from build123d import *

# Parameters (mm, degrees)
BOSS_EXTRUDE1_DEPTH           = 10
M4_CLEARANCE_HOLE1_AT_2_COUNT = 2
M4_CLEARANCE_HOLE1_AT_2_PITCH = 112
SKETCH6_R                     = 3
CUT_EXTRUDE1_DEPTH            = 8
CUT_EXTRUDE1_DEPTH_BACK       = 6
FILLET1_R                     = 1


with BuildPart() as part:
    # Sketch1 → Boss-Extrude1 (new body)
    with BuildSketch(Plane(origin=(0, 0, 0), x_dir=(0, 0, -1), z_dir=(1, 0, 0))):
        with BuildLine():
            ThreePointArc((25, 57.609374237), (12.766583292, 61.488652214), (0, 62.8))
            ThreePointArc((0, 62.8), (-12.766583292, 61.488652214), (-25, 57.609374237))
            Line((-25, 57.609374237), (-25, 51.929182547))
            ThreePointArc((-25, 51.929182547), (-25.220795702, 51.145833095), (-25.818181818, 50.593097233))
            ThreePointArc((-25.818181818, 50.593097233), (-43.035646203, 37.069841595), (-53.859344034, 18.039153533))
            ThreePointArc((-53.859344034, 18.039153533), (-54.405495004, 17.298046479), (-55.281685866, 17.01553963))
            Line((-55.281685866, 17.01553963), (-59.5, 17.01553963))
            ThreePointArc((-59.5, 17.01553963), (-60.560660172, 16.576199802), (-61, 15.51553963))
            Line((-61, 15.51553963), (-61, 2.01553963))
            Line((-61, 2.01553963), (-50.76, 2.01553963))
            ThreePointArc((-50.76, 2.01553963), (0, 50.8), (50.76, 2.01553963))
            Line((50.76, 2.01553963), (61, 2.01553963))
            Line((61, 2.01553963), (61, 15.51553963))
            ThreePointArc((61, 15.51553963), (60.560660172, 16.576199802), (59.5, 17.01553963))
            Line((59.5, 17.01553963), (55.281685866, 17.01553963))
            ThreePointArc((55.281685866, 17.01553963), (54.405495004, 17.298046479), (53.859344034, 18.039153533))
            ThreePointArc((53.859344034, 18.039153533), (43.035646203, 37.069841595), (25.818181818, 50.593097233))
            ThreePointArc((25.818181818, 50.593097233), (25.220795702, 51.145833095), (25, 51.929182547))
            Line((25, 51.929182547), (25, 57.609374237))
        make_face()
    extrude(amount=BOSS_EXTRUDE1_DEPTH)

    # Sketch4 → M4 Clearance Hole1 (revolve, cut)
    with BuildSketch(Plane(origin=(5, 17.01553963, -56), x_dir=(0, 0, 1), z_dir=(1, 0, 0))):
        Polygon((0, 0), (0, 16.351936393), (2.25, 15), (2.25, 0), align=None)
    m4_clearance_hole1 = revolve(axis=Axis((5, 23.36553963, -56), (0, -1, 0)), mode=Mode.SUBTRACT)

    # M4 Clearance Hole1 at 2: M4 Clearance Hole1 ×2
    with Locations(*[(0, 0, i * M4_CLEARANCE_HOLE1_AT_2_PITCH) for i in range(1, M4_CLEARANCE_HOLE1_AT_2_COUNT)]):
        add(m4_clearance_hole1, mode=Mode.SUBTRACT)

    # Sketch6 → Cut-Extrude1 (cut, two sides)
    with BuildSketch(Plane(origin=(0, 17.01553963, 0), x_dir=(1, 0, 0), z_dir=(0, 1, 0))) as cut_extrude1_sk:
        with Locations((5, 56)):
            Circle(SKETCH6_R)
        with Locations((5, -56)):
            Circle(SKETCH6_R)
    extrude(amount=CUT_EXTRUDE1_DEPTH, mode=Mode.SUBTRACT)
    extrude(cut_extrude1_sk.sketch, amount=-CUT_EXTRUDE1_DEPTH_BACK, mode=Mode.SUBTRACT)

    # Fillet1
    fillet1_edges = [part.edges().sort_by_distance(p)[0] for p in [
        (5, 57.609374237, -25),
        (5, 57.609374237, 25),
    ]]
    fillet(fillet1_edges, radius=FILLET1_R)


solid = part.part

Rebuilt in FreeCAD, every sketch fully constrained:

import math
import FreeCAD as App
import Part
import Sketcher
Q = App.Units.Quantity


def edges_at(feature, points):
    """Names of the edges that pass closest to the given points."""
    edges = feature.Shape.Edges
    near = lambda p: min(range(len(edges)), key=lambda i: edges[i].distToShape(Part.Vertex(*p))[0])
    return sorted({f"Edge{near(p) + 1}" for p in points})

doc = App.newDocument("Part")
body = doc.addObject("PartDesign::Body", "Body")

# Sketch on YZ plane
sketch1 = body.newObject("Sketcher::SketchObject", "Sketch")
sketch1.AttachmentSupport = (doc.getObject("YZ_Plane"), [""])
sketch1.MapMode = "FlatFace"
sketch1.addGeometry([
    Part.ArcOfCircle(Part.Circle(App.Vector(0, 0, 0), App.Vector(0, 0, 1), 62.8), math.radians(-23), math.radians(0)),  # 0
    Part.ArcOfCircle(Part.Circle(App.Vector(0, 0, 0), App.Vector(0, 0, 1), 62.8), math.radians(0), math.radians(23)),  # 1
    Part.LineSegment(App.Vector(57.6, 25, 0), App.Vector(51.9, 25, 0)),  # 2
    Part.ArcOfCircle(Part.Circle(App.Vector(51.9, 26.5, 0), App.Vector(0, 0, 1), 1.5), math.radians(-153), math.radians(-90)),  # 3
    Part.ArcOfCircle(Part.Circle(App.Vector(0, 0, 0), App.Vector(0, 0, 1), 56.8), math.radians(27), math.radians(71)),  # 4
    Part.ArcOfCircle(Part.Circle(App.Vector(18.5, 55.3, 0), App.Vector(0, 0, 1), 1.5), math.radians(-180), math.radians(-109)),  # 5
    Part.LineSegment(App.Vector(17, 55.3, 0), App.Vector(17, 59.5, 0)),  # 6
    Part.ArcOfCircle(Part.Circle(App.Vector(15.5, 59.5, 0), App.Vector(0, 0, 1), 1.5), math.radians(0), math.radians(90)),  # 7
    Part.LineSegment(App.Vector(15.5, 61, 0), App.Vector(2, 61, 0)),  # 8
    Part.LineSegment(App.Vector(2, 61, 0), App.Vector(2, 50.8, 0)),  # 9
    Part.ArcOfCircle(Part.Circle(App.Vector(0, 0, 0), App.Vector(0, 0, 1), 50.8), math.radians(-88), math.radians(88)),  # 10
    Part.LineSegment(App.Vector(2, -50.8, 0), App.Vector(2, -61, 0)),  # 11
    Part.LineSegment(App.Vector(2, -61, 0), App.Vector(15.5, -61, 0)),  # 12
    Part.ArcOfCircle(Part.Circle(App.Vector(15.5, -59.5, 0), App.Vector(0, 0, 1), 1.5), math.radians(-90), math.radians(0)),  # 13
    Part.LineSegment(App.Vector(17, -59.5, 0), App.Vector(17, -55.3, 0)),  # 14
    Part.ArcOfCircle(Part.Circle(App.Vector(18.5, -55.3, 0), App.Vector(0, 0, 1), 1.5), math.radians(109), math.radians(180)),  # 15
    Part.ArcOfCircle(Part.Circle(App.Vector(0, 0, 0), App.Vector(0, 0, 1), 56.8), math.radians(-71), math.radians(-27)),  # 16
    Part.ArcOfCircle(Part.Circle(App.Vector(51.9, -26.5, 0), App.Vector(0, 0, 1), 1.5), math.radians(90), math.radians(153)),  # 17
    Part.LineSegment(App.Vector(51.9, -25, 0), App.Vector(57.6, -25, 0)),  # 18
], False)
sketch1.addConstraint([
    Sketcher.Constraint("Tangent", 0, 2, 1, 1),
    Sketcher.Constraint("Coincident", 1, 2, 2, 1),
    Sketcher.Constraint("Tangent", 2, 2, 3, 2),
    Sketcher.Constraint("Tangent", 3, 1, 4, 1),
    Sketcher.Constraint("Tangent", 4, 2, 5, 2),
    Sketcher.Constraint("Tangent", 5, 1, 6, 1),
    Sketcher.Constraint("Tangent", 6, 2, 7, 1),
    Sketcher.Constraint("Tangent", 7, 2, 8, 1),
    Sketcher.Constraint("Coincident", 8, 2, 9, 1),
    Sketcher.Constraint("Coincident", 9, 2, 10, 2),
    Sketcher.Constraint("Coincident", 10, 1, 11, 1),
    Sketcher.Constraint("Coincident", 11, 2, 12, 1),
    Sketcher.Constraint("Tangent", 12, 2, 13, 1),
    Sketcher.Constraint("Tangent", 13, 2, 14, 1),
    Sketcher.Constraint("Tangent", 14, 2, 15, 2),
    Sketcher.Constraint("Tangent", 15, 1, 16, 1),
    Sketcher.Constraint("Tangent", 16, 2, 17, 2),
    Sketcher.Constraint("Tangent", 17, 1, 18, 1),
    Sketcher.Constraint("Coincident", 18, 2, 0, 1),
    Sketcher.Constraint("Horizontal", 2),
    Sketcher.Constraint("Vertical", 6),
    Sketcher.Constraint("Horizontal", 8),
    Sketcher.Constraint("Vertical", 9),
    Sketcher.Constraint("Vertical", 11),
    Sketcher.Constraint("Horizontal", 12),
    Sketcher.Constraint("Vertical", 14),
    Sketcher.Constraint("Horizontal", 18),
    Sketcher.Constraint("Coincident", 0, 3, -1, 1),
    Sketcher.Constraint("Coincident", 4, 3, -1, 1),
    Sketcher.Constraint("Coincident", 10, 3, -1, 1),
    Sketcher.Constraint("Coincident", 16, 3, -1, 1),
    Sketcher.Constraint("Equal", 0, 1),
    Sketcher.Constraint("Equal", 3, 5),
    Sketcher.Constraint("Equal", 5, 7),
    Sketcher.Constraint("Equal", 7, 13),
    Sketcher.Constraint("Equal", 13, 15),
    Sketcher.Constraint("Equal", 4, 16),
    Sketcher.Constraint("Equal", 15, 17),
    Sketcher.Constraint("Symmetric", 7, 3, 13, 3, -1),
    Sketcher.Constraint("PointOnObject", 0, 2, -1),
    Sketcher.Constraint("Vertical", 3, 3, 17, 3),
    Sketcher.Constraint("Vertical", 9, 2, 10, 1),
    Sketcher.Constraint("Radius", 0, Q("62.8 mm")),
    Sketcher.Constraint("Radius", 3, Q("1.5 mm")),
    Sketcher.Constraint("Radius", 4, Q("56.8 mm")),
    Sketcher.Constraint("Radius", 10, Q("50.8 mm")),
    Sketcher.Constraint("DistanceX", 8, 2, 8, 1, Q("13.5 mm")),
    Sketcher.Constraint("DistanceY", -1, 1, 1, 2, Q("25 mm")),
    Sketcher.Constraint("DistanceY", -1, 1, 7, 2, Q("61 mm")),
    Sketcher.Constraint("DistanceY", 9, 2, 9, 1, Q("10.24 mm")),
])
pad1 = body.newObject("PartDesign::Pad", "Pad")
pad1.Profile = sketch1
pad1.Length = 10

# Sketch on YZ plane
sketch2 = body.newObject("Sketcher::SketchObject", "Sketch001")
sketch2.AttachmentSupport = (doc.getObject("YZ_Plane"), [""])
sketch2.MapMode = "FlatFace"
sketch2.AttachmentOffset = App.Placement(App.Vector(0, 0, 5), App.Rotation())
sketch2.addGeometry([
    Part.LineSegment(App.Vector(0.7, -56, 0), App.Vector(17, -56, 0)),
    Part.LineSegment(App.Vector(17, -56, 0), App.Vector(17, -53.8, 0)),
    Part.LineSegment(App.Vector(17, -53.8, 0), App.Vector(2, -53.8, 0)),
    Part.LineSegment(App.Vector(2, -53.8, 0), App.Vector(0.7, -56, 0)),
], False)
sketch2.addGeometry(Part.LineSegment(App.Vector(17, -56, 0), App.Vector(0.7, -56, 0)), True)  # axis
sketch2.addConstraint([
    Sketcher.Constraint("Coincident", 0, 2, 1, 1),
    Sketcher.Constraint("Coincident", 1, 2, 2, 1),
    Sketcher.Constraint("Coincident", 2, 2, 3, 1),
    Sketcher.Constraint("Coincident", 3, 2, 0, 1),
    Sketcher.Constraint("Horizontal", 0),
    Sketcher.Constraint("Vertical", 1),
    Sketcher.Constraint("Horizontal", 2),
    Sketcher.Constraint("Horizontal", 4),
    Sketcher.Constraint("Coincident", 4, 1, 0, 2),
    Sketcher.Constraint("Equal", 0, 4),
    Sketcher.Constraint("DistanceX", 2, 2, 2, 1, Q("15 mm")),
    Sketcher.Constraint("Angle", 3, Q("-121 deg")),
    Sketcher.Constraint("DistanceY", 0, 2, -1, 1, Q("56 mm")),
    Sketcher.Constraint("DistanceY", 1, 1, 1, 2, Q("2.25 mm")),
    Sketcher.Constraint("DistanceX", -1, 1, 0, 2, Q("17.01554 mm")),
])
groove = body.newObject("PartDesign::Groove", "Groove")
groove.Profile = sketch2
groove.ReferenceAxis = (sketch2, ["Axis0"])
groove.Angle = 360
doc.recompute()

linearpattern = body.newObject("PartDesign::LinearPattern", "LinearPattern")
linearpattern.Originals = [groove]
linearpattern.Direction = (doc.getObject("Z_Axis"), [""])
linearpattern.Mode = "offset"
linearpattern.Offset = 112
linearpattern.Occurrences = 2
body.Tip = linearpattern

# Sketch on XZ plane
sketch3 = body.newObject("Sketcher::SketchObject", "Sketch002")
sketch3.AttachmentSupport = (doc.getObject("XZ_Plane"), [""])
sketch3.MapMode = "FlatFace"
sketch3.AttachmentOffset = App.Placement(App.Vector(0, 0, -17.01554), App.Rotation())
sketch3.addGeometry([
    Part.Circle(App.Vector(5, -56, 0), App.Vector(0, 0, 1), 3),
    Part.Circle(App.Vector(5, 56, 0), App.Vector(0, 0, 1), 3),
], False)
sketch3.addConstraint([
    Sketcher.Constraint("Equal", 0, 1),
    Sketcher.Constraint("Symmetric", 0, 3, 1, 3, -1),
    Sketcher.Constraint("Diameter", 0, Q("6 mm")),
    Sketcher.Constraint("DistanceX", -1, 1, 0, 3, Q("5 mm")),
    Sketcher.Constraint("DistanceY", 0, 3, -1, 1, Q("56 mm")),
])
pocket1 = body.newObject("PartDesign::Pocket", "Pocket")
pocket1.Profile = sketch3
pocket1.Type = "TwoLengths"
pocket1.Length = 8
pocket1.Length2 = 6
doc.recompute()

fillet = body.newObject("PartDesign::Fillet", "Fillet")
fillet.Base = (pocket1, edges_at(pocket1, [(5, 57.609, -25), (5, 57.609, 25)]))
fillet.Radius = 1

doc.recompute()
